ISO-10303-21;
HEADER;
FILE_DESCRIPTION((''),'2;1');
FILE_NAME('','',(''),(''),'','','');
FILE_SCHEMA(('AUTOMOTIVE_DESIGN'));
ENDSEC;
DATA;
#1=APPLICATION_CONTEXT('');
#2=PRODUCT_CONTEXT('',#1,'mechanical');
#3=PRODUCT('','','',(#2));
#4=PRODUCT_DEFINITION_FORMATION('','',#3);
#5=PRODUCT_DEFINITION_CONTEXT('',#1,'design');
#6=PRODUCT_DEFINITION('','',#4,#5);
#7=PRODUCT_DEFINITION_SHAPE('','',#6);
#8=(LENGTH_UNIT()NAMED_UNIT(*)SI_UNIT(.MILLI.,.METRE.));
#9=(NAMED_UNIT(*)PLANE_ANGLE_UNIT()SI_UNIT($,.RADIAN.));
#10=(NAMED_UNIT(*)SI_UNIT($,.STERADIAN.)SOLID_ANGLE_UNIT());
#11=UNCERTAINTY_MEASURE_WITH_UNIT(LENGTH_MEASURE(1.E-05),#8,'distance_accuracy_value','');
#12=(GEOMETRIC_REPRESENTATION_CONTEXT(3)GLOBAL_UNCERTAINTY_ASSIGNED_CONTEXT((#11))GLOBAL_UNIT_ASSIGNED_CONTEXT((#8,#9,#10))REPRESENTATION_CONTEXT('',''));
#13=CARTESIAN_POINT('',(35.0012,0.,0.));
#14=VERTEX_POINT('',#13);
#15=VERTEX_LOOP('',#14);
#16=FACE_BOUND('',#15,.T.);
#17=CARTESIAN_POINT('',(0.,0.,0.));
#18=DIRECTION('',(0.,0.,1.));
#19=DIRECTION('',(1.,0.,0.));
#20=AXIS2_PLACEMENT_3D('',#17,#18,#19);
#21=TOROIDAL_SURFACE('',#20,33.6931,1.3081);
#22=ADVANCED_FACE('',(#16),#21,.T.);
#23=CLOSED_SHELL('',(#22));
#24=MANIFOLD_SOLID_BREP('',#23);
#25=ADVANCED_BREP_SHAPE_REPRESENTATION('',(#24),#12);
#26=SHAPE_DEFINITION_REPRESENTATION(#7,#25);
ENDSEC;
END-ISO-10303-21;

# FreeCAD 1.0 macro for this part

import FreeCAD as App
import Part
import Sketcher
from FreeCAD import Vector
Q = App.Units.Quantity

doc = App.newDocument("Part")
body = doc.addObject("PartDesign::Body", "Body")

# Sketch on YZ plane
sketch1 = body.newObject("Sketcher::SketchObject", "Sketch")
sketch1.AttachmentSupport = (doc.getObject("YZ_Plane"), [""])
sketch1.MapMode = "FlatFace"
sketch1.addGeometry(Part.Circle(Vector(-33.7, 0, 0), Vector(0, 0, 1), 1.3), False)
sketch1.addConstraint(Sketcher.Constraint("PointOnObject", 0, 3, -1))
sketch1.addConstraint(Sketcher.Constraint("Diameter", 0, Q("0.103 in")))
sketch1.addConstraint(Sketcher.Constraint("DistanceX", 0, 3, -1, 1, Q("1.3265 in")))
revolution = body.newObject("PartDesign::Revolution", "Revolution")
revolution.Profile = sketch1
revolution.ReferenceAxis = (sketch1, ["V_Axis"])
revolution.Angle = 360

doc.recompute()
